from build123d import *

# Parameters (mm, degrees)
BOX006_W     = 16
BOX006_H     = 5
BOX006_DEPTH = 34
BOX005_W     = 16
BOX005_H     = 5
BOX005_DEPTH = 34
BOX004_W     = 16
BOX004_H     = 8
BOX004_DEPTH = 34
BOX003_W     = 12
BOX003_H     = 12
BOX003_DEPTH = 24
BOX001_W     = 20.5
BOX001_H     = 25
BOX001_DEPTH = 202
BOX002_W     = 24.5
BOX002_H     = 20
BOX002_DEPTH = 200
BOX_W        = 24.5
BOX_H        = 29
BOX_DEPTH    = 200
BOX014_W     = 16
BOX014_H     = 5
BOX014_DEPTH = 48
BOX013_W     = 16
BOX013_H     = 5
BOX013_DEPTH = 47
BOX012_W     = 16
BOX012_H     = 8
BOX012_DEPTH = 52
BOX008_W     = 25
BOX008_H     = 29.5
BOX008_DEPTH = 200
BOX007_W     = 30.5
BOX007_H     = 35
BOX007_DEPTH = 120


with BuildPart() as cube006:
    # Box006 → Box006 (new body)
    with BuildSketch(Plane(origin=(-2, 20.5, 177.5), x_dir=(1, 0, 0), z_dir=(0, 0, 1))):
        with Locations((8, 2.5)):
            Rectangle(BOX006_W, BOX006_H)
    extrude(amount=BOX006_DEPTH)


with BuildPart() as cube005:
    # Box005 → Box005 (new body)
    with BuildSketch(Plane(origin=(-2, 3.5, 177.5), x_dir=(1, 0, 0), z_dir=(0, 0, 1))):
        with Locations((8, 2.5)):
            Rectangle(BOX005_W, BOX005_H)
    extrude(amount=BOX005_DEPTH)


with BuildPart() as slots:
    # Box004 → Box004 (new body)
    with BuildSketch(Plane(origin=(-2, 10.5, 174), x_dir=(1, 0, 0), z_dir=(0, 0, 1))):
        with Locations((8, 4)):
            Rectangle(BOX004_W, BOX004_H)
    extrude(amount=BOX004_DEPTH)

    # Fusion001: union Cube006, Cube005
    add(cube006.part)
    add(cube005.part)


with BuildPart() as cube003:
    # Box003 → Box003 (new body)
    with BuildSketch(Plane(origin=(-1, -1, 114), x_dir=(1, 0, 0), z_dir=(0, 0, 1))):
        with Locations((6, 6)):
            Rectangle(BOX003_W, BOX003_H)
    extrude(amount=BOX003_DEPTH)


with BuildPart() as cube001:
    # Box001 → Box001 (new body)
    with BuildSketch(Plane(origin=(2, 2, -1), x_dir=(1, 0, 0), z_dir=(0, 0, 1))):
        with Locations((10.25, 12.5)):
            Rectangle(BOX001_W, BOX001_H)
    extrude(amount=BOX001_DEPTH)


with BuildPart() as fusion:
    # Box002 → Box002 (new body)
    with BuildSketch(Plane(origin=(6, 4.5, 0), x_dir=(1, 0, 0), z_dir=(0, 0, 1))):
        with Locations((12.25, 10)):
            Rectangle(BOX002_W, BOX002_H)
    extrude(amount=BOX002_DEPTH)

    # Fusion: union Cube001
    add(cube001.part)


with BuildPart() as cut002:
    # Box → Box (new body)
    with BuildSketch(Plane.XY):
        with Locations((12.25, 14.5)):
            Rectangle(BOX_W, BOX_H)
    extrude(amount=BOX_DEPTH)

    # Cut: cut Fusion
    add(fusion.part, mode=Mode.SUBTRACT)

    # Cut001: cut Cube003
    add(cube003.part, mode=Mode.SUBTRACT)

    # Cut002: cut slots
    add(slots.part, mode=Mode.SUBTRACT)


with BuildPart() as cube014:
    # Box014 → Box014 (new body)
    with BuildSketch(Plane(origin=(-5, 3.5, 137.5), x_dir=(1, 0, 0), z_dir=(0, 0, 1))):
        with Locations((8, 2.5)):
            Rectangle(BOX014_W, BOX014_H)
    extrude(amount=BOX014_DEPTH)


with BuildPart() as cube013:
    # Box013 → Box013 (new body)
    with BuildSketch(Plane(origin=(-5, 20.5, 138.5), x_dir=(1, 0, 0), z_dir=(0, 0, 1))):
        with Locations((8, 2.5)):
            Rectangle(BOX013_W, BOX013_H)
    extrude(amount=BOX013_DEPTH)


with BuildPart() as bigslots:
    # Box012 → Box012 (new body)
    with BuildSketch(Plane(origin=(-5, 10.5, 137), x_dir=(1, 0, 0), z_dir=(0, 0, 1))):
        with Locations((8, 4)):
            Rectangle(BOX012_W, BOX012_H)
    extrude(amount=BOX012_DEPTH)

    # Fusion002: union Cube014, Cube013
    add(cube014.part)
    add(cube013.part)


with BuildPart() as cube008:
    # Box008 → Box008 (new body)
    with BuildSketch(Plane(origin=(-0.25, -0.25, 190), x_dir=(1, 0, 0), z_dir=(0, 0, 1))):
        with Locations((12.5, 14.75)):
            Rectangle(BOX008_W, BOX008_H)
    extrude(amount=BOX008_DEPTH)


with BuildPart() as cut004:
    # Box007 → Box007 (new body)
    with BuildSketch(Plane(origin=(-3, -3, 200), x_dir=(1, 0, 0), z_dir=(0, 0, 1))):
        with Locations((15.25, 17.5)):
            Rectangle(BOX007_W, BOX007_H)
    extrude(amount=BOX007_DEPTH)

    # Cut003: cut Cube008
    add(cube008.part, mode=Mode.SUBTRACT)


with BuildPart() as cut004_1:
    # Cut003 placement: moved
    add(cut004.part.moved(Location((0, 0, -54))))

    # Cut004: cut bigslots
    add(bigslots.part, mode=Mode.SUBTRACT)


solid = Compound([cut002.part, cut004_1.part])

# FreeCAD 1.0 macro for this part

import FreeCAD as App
import Part
import Sketcher
from FreeCAD import Vector
Q = App.Units.Quantity

doc = App.newDocument("Part")
body = doc.addObject("PartDesign::Body", "Body")

sketch1 = body.newObject("Sketcher::SketchObject", "Sketch")
sketch1.AttachmentSupport = (doc.getObject("XY_Plane"), [""])
sketch1.MapMode = "FlatFace"
sketch1.AttachmentOffset = App.Placement(Vector(0, 0, 177.5), App.Rotation())
sketch1.addGeometry(Part.LineSegment(Vector(-2, 26, 0), Vector(-2, 20, 0)), False)
sketch1.addGeometry(Part.LineSegment(Vector(-2, 20, 0), Vector(14, 20, 0)), False)
sketch1.addGeometry(Part.LineSegment(Vector(14, 20, 0), Vector(14, 26, 0)), False)
sketch1.addGeometry(Part.LineSegment(Vector(14, 26, 0), Vector(-2, 26, 0)), False)
sketch1.addConstraint(Sketcher.Constraint("Coincident", 0, 2, 1, 1))
sketch1.addConstraint(Sketcher.Constraint("Coincident", 1, 2, 2, 1))
sketch1.addConstraint(Sketcher.Constraint("Coincident", 2, 2, 3, 1))
sketch1.addConstraint(Sketcher.Constraint("Coincident", 3, 2, 0, 1))
sketch1.addConstraint(Sketcher.Constraint("Vertical", 0))
sketch1.addConstraint(Sketcher.Constraint("Horizontal", 1))
sketch1.addConstraint(Sketcher.Constraint("Vertical", 2))
sketch1.addConstraint(Sketcher.Constraint("Horizontal", 3))
sketch1.addConstraint(Sketcher.Constraint("DistanceX", 1, 1, 1, 2, Q("16 mm")))
sketch1.addConstraint(Sketcher.Constraint("DistanceY", 0, 2, 0, 1, Q("5 mm")))
sketch1.addConstraint(Sketcher.Constraint("DistanceX", 0, 2, -1, 1, Q("2 mm")))
sketch1.addConstraint(Sketcher.Constraint("DistanceY", -1, 1, 0, 2, Q("20.5 mm")))
pad1 = body.newObject("PartDesign::Pad", "Pad")
pad1.Profile = sketch1
pad1.Length = 34
body2 = doc.addObject("PartDesign::Body", "Body001")

sketch2 = body2.newObject("Sketcher::SketchObject", "Sketch001")
sketch2.AttachmentSupport = (doc.getObject("XY_Plane001"), [""])
sketch2.MapMode = "FlatFace"
sketch2.AttachmentOffset = App.Placement(Vector(0, 0, 177.5), App.Rotation())
sketch2.addGeometry(Part.LineSegment(Vector(-2, 8, 0), Vector(-2, 4, 0)), False)
sketch2.addGeometry(Part.LineSegment(Vector(-2, 4, 0), Vector(14, 4, 0)), False)
sketch2.addGeometry(Part.LineSegment(Vector(14, 4, 0), Vector(14, 8, 0)), False)
sketch2.addGeometry(Part.LineSegment(Vector(14, 8, 0), Vector(-2, 8, 0)), False)
sketch2.addConstraint(Sketcher.Constraint("Coincident", 0, 2, 1, 1))
sketch2.addConstraint(Sketcher.Constraint("Coincident", 1, 2, 2, 1))
sketch2.addConstraint(Sketcher.Constraint("Coincident", 2, 2, 3, 1))
sketch2.addConstraint(Sketcher.Constraint("Coincident", 3, 2, 0, 1))
sketch2.addConstraint(Sketcher.Constraint("Vertical", 0))
sketch2.addConstraint(Sketcher.Constraint("Horizontal", 1))
sketch2.addConstraint(Sketcher.Constraint("Vertical", 2))
sketch2.addConstraint(Sketcher.Constraint("Horizontal", 3))
sketch2.addConstraint(Sketcher.Constraint("DistanceX", 1, 1, 1, 2, Q("16 mm")))
sketch2.addConstraint(Sketcher.Constraint("DistanceY", 0, 2, 0, 1, Q("5 mm")))
sketch2.addConstraint(Sketcher.Constraint("DistanceX", 0, 2, -1, 1, Q("2 mm")))
sketch2.addConstraint(Sketcher.Constraint("DistanceY", -1, 1, 0, 2, Q("3.5 mm")))
pad2 = body2.newObject("PartDesign::Pad", "Pad001")
pad2.Profile = sketch2
pad2.Length = 34
body3 = doc.addObject("PartDesign::Body", "Body002")
body3.AllowCompound = True

sketch3 = body3.newObject("Sketcher::SketchObject", "Sketch002")
sketch3.AttachmentSupport = (doc.getObject("XY_Plane002"), [""])
sketch3.MapMode = "FlatFace"
sketch3.AttachmentOffset = App.Placement(Vector(0, 0, 174), App.Rotation())
sketch3.addGeometry(Part.LineSegment(Vector(-2, 18, 0), Vector(-2, 10, 0)), False)
sketch3.addGeometry(Part.LineSegment(Vector(-2, 10, 0), Vector(14, 10, 0)), False)
sketch3.addGeometry(Part.LineSegment(Vector(14, 10, 0), Vector(14, 18, 0)), False)
sketch3.addGeometry(Part.LineSegment(Vector(14, 18, 0), Vector(-2, 18, 0)), False)
sketch3.addConstraint(Sketcher.Constraint("Coincident", 0, 2, 1, 1))
sketch3.addConstraint(Sketcher.Constraint("Coincident", 1, 2, 2, 1))
sketch3.addConstraint(Sketcher.Constraint("Coincident", 2, 2, 3, 1))
sketch3.addConstraint(Sketcher.Constraint("Coincident", 3, 2, 0, 1))
sketch3.addConstraint(Sketcher.Constraint("Vertical", 0))
sketch3.addConstraint(Sketcher.Constraint("Horizontal", 1))
sketch3.addConstraint(Sketcher.Constraint("Vertical", 2))
sketch3.addConstraint(Sketcher.Constraint("Horizontal", 3))
sketch3.addConstraint(Sketcher.Constraint("DistanceX", 1, 1, 1, 2, Q("16 mm")))
sketch3.addConstraint(Sketcher.Constraint("DistanceY", 0, 2, 0, 1, Q("8 mm")))
sketch3.addConstraint(Sketcher.Constraint("DistanceX", 0, 2, -1, 1, Q("2 mm")))
sketch3.addConstraint(Sketcher.Constraint("DistanceY", -1, 1, 0, 2, Q("10.5 mm")))
pad3 = body3.newObject("PartDesign::Pad", "Pad002")
pad3.Profile = sketch3
pad3.Length = 34
doc.recompute()

boolean = body3.newObject("PartDesign::Boolean", "Boolean")
boolean.Type = "Fuse"
boolean.addObjects([body])
doc.recompute()

boolean2 = body3.newObject("PartDesign::Boolean", "Boolean001")
boolean2.Type = "Fuse"
boolean2.addObjects([body2])
body4 = doc.addObject("PartDesign::Body", "Body003")

sketch4 = body4.newObject("Sketcher::SketchObject", "Sketch003")
sketch4.AttachmentSupport = (doc.getObject("XY_Plane003"), [""])
sketch4.MapMode = "FlatFace"
sketch4.AttachmentOffset = App.Placement(Vector(0, 0, 114), App.Rotation())
sketch4.addGeometry(Part.LineSegment(Vector(-1, 11, 0), Vector(-1, -1, 0)), False)
sketch4.addGeometry(Part.LineSegment(Vector(-1, -1, 0), Vector(11, -1, 0)), False)
sketch4.addGeometry(Part.LineSegment(Vector(11, -1, 0), Vector(11, 11, 0)), False)
sketch4.addGeometry(Part.LineSegment(Vector(11, 11, 0), Vector(-1, 11, 0)), False)
sketch4.addConstraint(Sketcher.Constraint("Coincident", 0, 2, 1, 1))
sketch4.addConstraint(Sketcher.Constraint("Coincident", 1, 2, 2, 1))
sketch4.addConstraint(Sketcher.Constraint("Coincident", 2, 2, 3, 1))
sketch4.addConstraint(Sketcher.Constraint("Coincident", 3, 2, 0, 1))
sketch4.addConstraint(Sketcher.Constraint("Vertical", 0))
sketch4.addConstraint(Sketcher.Constraint("Horizontal", 1))
sketch4.addConstraint(Sketcher.Constraint("Vertical", 2))
sketch4.addConstraint(Sketcher.Constraint("Horizontal", 3))
sketch4.addConstraint(Sketcher.Constraint("Equal", 3, 0))
sketch4.addConstraint(Sketcher.Constraint("DistanceX", 1, 1, 1, 2, Q("12 mm")))
sketch4.addConstraint(Sketcher.Constraint("DistanceX", 0, 2, -1, 1, Q("1 mm")))
sketch4.addConstraint(Sketcher.Constraint("DistanceY", 0, 2, -1, 1, Q("1 mm")))
pad4 = body4.newObject("PartDesign::Pad", "Pad003")
pad4.Profile = sketch4
pad4.Length = 24
body5 = doc.addObject("PartDesign::Body", "Body004")

sketch5 = body5.newObject("Sketcher::SketchObject", "Sketch004")
sketch5.AttachmentSupport = (doc.getObject("XY_Plane004"), [""])
sketch5.MapMode = "FlatFace"
sketch5.AttachmentOffset = App.Placement(Vector(0, 0, -1), App.Rotation())
sketch5.addGeometry(Part.LineSegment(Vector(2, 27, 0), Vector(2, 2, 0)), False)
sketch5.addGeometry(Part.LineSegment(Vector(2, 2, 0), Vector(22, 2, 0)), False)
sketch5.addGeometry(Part.LineSegment(Vector(22, 2, 0), Vector(22, 27, 0)), False)
sketch5.addGeometry(Part.LineSegment(Vector(22, 27, 0), Vector(2, 27, 0)), False)
sketch5.addConstraint(Sketcher.Constraint("Coincident", 0, 2, 1, 1))
sketch5.addConstraint(Sketcher.Constraint("Coincident", 1, 2, 2, 1))
sketch5.addConstraint(Sketcher.Constraint("Coincident", 2, 2, 3, 1))
sketch5.addConstraint(Sketcher.Constraint("Coincident", 3, 2, 0, 1))
sketch5.addConstraint(Sketcher.Constraint("Vertical", 0))
sketch5.addConstraint(Sketcher.Constraint("Horizontal", 1))
sketch5.addConstraint(Sketcher.Constraint("Vertical", 2))
sketch5.addConstraint(Sketcher.Constraint("Horizontal", 3))
sketch5.addConstraint(Sketcher.Constraint("DistanceY", 0, 2, 0, 1, Q("25 mm")))
sketch5.addConstraint(Sketcher.Constraint("DistanceX", 1, 1, 1, 2, Q("20.5 mm")))
sketch5.addConstraint(Sketcher.Constraint("DistanceX", -1, 1, 0, 2, Q("2 mm")))
sketch5.addConstraint(Sketcher.Constraint("DistanceY", -1, 1, 0, 2, Q("2 mm")))
pad5 = body5.newObject("PartDesign::Pad", "Pad004")
pad5.Profile = sketch5
pad5.Length = 202
body6 = doc.addObject("PartDesign::Body", "Body005")

sketch6 = body6.newObject("Sketcher::SketchObject", "Sketch005")
sketch6.AttachmentSupport = (doc.getObject("XY_Plane005"), [""])
sketch6.MapMode = "FlatFace"
sketch6.addGeometry(Part.LineSegment(Vector(6, 24, 0), Vector(6, 4, 0)), False)
sketch6.addGeometry(Part.LineSegment(Vector(6, 4, 0), Vector(30, 4, 0)), False)
sketch6.addGeometry(Part.LineSegment(Vector(30, 4, 0), Vector(30, 24, 0)), False)
sketch6.addGeometry(Part.LineSegment(Vector(30, 24, 0), Vector(6, 24, 0)), False)
sketch6.addConstraint(Sketcher.Constraint("Coincident", 0, 2, 1, 1))
sketch6.addConstraint(Sketcher.Constraint("Coincident", 1, 2, 2, 1))
sketch6.addConstraint(Sketcher.Constraint("Coincident", 2, 2, 3, 1))
sketch6.addConstraint(Sketcher.Constraint("Coincident", 3, 2, 0, 1))
sketch6.addConstraint(Sketcher.Constraint("Vertical", 0))
sketch6.addConstraint(Sketcher.Constraint("Horizontal", 1))
sketch6.addConstraint(Sketcher.Constraint("Vertical", 2))
sketch6.addConstraint(Sketcher.Constraint("Horizontal", 3))
sketch6.addConstraint(Sketcher.Constraint("DistanceY", 0, 2, 0, 1, Q("20 mm")))
sketch6.addConstraint(Sketcher.Constraint("DistanceX", 1, 1, 1, 2, Q("24.5 mm")))
sketch6.addConstraint(Sketcher.Constraint("DistanceX", -1, 1, 0, 2, Q("6 mm")))
sketch6.addConstraint(Sketcher.Constraint("DistanceY", -1, 1, 0, 2, Q("4.5 mm")))
pad6 = body6.newObject("PartDesign::Pad", "Pad005")
pad6.Profile = sketch6
pad6.Length = 200
doc.recompute()

boolean3 = body6.newObject("PartDesign::Boolean", "Boolean002")
boolean3.Type = "Fuse"
boolean3.addObjects([body5])
body7 = doc.addObject("PartDesign::Body", "Body006")

sketch7 = body7.newObject("Sketcher::SketchObject", "Sketch006")
sketch7.AttachmentSupport = (doc.getObject("XY_Plane006"), [""])
sketch7.MapMode = "FlatFace"
sketch7.addGeometry(Part.LineSegment(Vector(0, 29, 0), Vector(0, 0, 0)), False)
sketch7.addGeometry(Part.LineSegment(Vector(0, 0, 0), Vector(24, 0, 0)), False)
sketch7.addGeometry(Part.LineSegment(Vector(24, 0, 0), Vector(24, 29, 0)), False)
sketch7.addGeometry(Part.LineSegment(Vector(24, 29, 0), Vector(0, 29, 0)), False)
sketch7.addConstraint(Sketcher.Constraint("Coincident", 0, 2, 1, 1))
sketch7.addConstraint(Sketcher.Constraint("Coincident", 1, 2, 2, 1))
sketch7.addConstraint(Sketcher.Constraint("Coincident", 2, 2, 3, 1))
sketch7.addConstraint(Sketcher.Constraint("Coincident", 3, 2, 0, 1))
sketch7.addConstraint(Sketcher.Constraint("Vertical", 0))
sketch7.addConstraint(Sketcher.Constraint("Horizontal", 1))
sketch7.addConstraint(Sketcher.Constraint("Vertical", 2))
sketch7.addConstraint(Sketcher.Constraint("Horizontal", 3))
sketch7.addConstraint(Sketcher.Constraint("Coincident", 0, 2, -1, 1))
sketch7.addConstraint(Sketcher.Constraint("DistanceY", 0, 2, 0, 1, Q("29 mm")))
sketch7.addConstraint(Sketcher.Constraint("DistanceX", 1, 1, 1, 2, Q("24.5 mm")))
pad7 = body7.newObject("PartDesign::Pad", "Pad006")
pad7.Profile = sketch7
pad7.Length = 200
doc.recompute()

boolean4 = body7.newObject("PartDesign::Boolean", "Boolean003")
boolean4.Type = "Cut"
boolean4.addObjects([body6])
doc.recompute()

boolean5 = body7.newObject("PartDesign::Boolean", "Boolean004")
boolean5.Type = "Cut"
boolean5.addObjects([body4])
doc.recompute()

boolean6 = body7.newObject("PartDesign::Boolean", "Boolean005")
boolean6.Type = "Cut"
boolean6.addObjects([body3])
body8 = doc.addObject("PartDesign::Body", "Body007")

sketch8 = body8.newObject("Sketcher::SketchObject", "Sketch007")
sketch8.AttachmentSupport = (doc.getObject("XY_Plane007"), [""])
sketch8.MapMode = "FlatFace"
sketch8.AttachmentOffset = App.Placement(Vector(0, 0, 137.5), App.Rotation())
sketch8.addGeometry(Part.LineSegment(Vector(-5, 8, 0), Vector(-5, 4, 0)), False)
sketch8.addGeometry(Part.LineSegment(Vector(-5, 4, 0), Vector(11, 4, 0)), False)
sketch8.addGeometry(Part.LineSegment(Vector(11, 4, 0), Vector(11, 8, 0)), False)
sketch8.addGeometry(Part.LineSegment(Vector(11, 8, 0), Vector(-5, 8, 0)), False)
sketch8.addConstraint(Sketcher.Constraint("Coincident", 0, 2, 1, 1))
sketch8.addConstraint(Sketcher.Constraint("Coincident", 1, 2, 2, 1))
sketch8.addConstraint(Sketcher.Constraint("Coincident", 2, 2, 3, 1))
sketch8.addConstraint(Sketcher.Constraint("Coincident", 3, 2, 0, 1))
sketch8.addConstraint(Sketcher.Constraint("Vertical", 0))
sketch8.addConstraint(Sketcher.Constraint("Horizontal", 1))
sketch8.addConstraint(Sketcher.Constraint("Vertical", 2))
sketch8.addConstraint(Sketcher.Constraint("Horizontal", 3))
sketch8.addConstraint(Sketcher.Constraint("DistanceX", 1, 1, 1, 2, Q("16 mm")))
sketch8.addConstraint(Sketcher.Constraint("DistanceY", 0, 2, 0, 1, Q("5 mm")))
sketch8.addConstraint(Sketcher.Constraint("DistanceX", 0, 2, -1, 1, Q("5 mm")))
sketch8.addConstraint(Sketcher.Constraint("DistanceY", -1, 1, 0, 2, Q("3.5 mm")))
pad8 = body8.newObject("PartDesign::Pad", "Pad007")
pad8.Profile = sketch8
pad8.Length = 48
body9 = doc.addObject("PartDesign::Body", "Body008")

sketch9 = body9.newObject("Sketcher::SketchObject", "Sketch008")
sketch9.AttachmentSupport = (doc.getObject("XY_Plane008"), [""])
sketch9.MapMode = "FlatFace"
sketch9.AttachmentOffset = App.Placement(Vector(0, 0, 138.5), App.Rotation())
sketch9.addGeometry(Part.LineSegment(Vector(-5, 26, 0), Vector(-5, 20, 0)), False)
sketch9.addGeometry(Part.LineSegment(Vector(-5, 20, 0), Vector(11, 20, 0)), False)
sketch9.addGeometry(Part.LineSegment(Vector(11, 20, 0), Vector(11, 26, 0)), False)
sketch9.addGeometry(Part.LineSegment(Vector(11, 26, 0), Vector(-5, 26, 0)), False)
sketch9.addConstraint(Sketcher.Constraint("Coincident", 0, 2, 1, 1))
sketch9.addConstraint(Sketcher.Constraint("Coincident", 1, 2, 2, 1))
sketch9.addConstraint(Sketcher.Constraint("Coincident", 2, 2, 3, 1))
sketch9.addConstraint(Sketcher.Constraint("Coincident", 3, 2, 0, 1))
sketch9.addConstraint(Sketcher.Constraint("Vertical", 0))
sketch9.addConstraint(Sketcher.Constraint("Horizontal", 1))
sketch9.addConstraint(Sketcher.Constraint("Vertical", 2))
sketch9.addConstraint(Sketcher.Constraint("Horizontal", 3))
sketch9.addConstraint(Sketcher.Constraint("DistanceX", 1, 1, 1, 2, Q("16 mm")))
sketch9.addConstraint(Sketcher.Constraint("DistanceY", 0, 2, 0, 1, Q("5 mm")))
sketch9.addConstraint(Sketcher.Constraint("DistanceX", 0, 2, -1, 1, Q("5 mm")))
sketch9.addConstraint(Sketcher.Constraint("DistanceY", -1, 1, 0, 2, Q("20.5 mm")))
pad9 = body9.newObject("PartDesign::Pad", "Pad008")
pad9.Profile = sketch9
pad9.Length = 47
body10 = doc.addObject("PartDesign::Body", "Body009")
body10.AllowCompound = True

sketch10 = body10.newObject("Sketcher::SketchObject", "Sketch009")
sketch10.AttachmentSupport = (doc.getObject("XY_Plane009"), [""])
sketch10.MapMode = "FlatFace"
sketch10.AttachmentOffset = App.Placement(Vector(0, 0, 137), App.Rotation())
sketch10.addGeometry(Part.LineSegment(Vector(-5, 18, 0), Vector(-5, 10, 0)), False)
sketch10.addGeometry(Part.LineSegment(Vector(-5, 10, 0), Vector(11, 10, 0)), False)
sketch10.addGeometry(Part.LineSegment(Vector(11, 10, 0), Vector(11, 18, 0)), False)
sketch10.addGeometry(Part.LineSegment(Vector(11, 18, 0), Vector(-5, 18, 0)), False)
sketch10.addConstraint(Sketcher.Constraint("Coincident", 0, 2, 1, 1))
sketch10.addConstraint(Sketcher.Constraint("Coincident", 1, 2, 2, 1))
sketch10.addConstraint(Sketcher.Constraint("Coincident", 2, 2, 3, 1))
sketch10.addConstraint(Sketcher.Constraint("Coincident", 3, 2, 0, 1))
sketch10.addConstraint(Sketcher.Constraint("Vertical", 0))
sketch10.addConstraint(Sketcher.Constraint("Horizontal", 1))
sketch10.addConstraint(Sketcher.Constraint("Vertical", 2))
sketch10.addConstraint(Sketcher.Constraint("Horizontal", 3))
sketch10.addConstraint(Sketcher.Constraint("DistanceX", 1, 1, 1, 2, Q("16 mm")))
sketch10.addConstraint(Sketcher.Constraint("DistanceY", 0, 2, 0, 1, Q("8 mm")))
sketch10.addConstraint(Sketcher.Constraint("DistanceX", 0, 2, -1, 1, Q("5 mm")))
sketch10.addConstraint(Sketcher.Constraint("DistanceY", -1, 1, 0, 2, Q("10.5 mm")))
pad10 = body10.newObject("PartDesign::Pad", "Pad009")
pad10.Profile = sketch10
pad10.Length = 52
doc.recompute()

boolean7 = body10.newObject("PartDesign::Boolean", "Boolean006")
boolean7.Type = "Fuse"
boolean7.addObjects([body8])
doc.recompute()

boolean8 = body10.newObject("PartDesign::Boolean", "Boolean007")
boolean8.Type = "Fuse"
boolean8.addObjects([body9])
body11 = doc.addObject("PartDesign::Body", "Body010")

sketch11 = body11.newObject("Sketcher::SketchObject", "Sketch010")
sketch11.AttachmentSupport = (doc.getObject("XY_Plane010"), [""])
sketch11.MapMode = "FlatFace"
sketch11.AttachmentOffset = App.Placement(Vector(0, 0, 190), App.Rotation())
sketch11.addGeometry(Part.LineSegment(Vector(0, 29, 0), Vector(0, 0, 0)), False)
sketch11.addGeometry(Part.LineSegment(Vector(0, 0, 0), Vector(25, 0, 0)), False)
sketch11.addGeometry(Part.LineSegment(Vector(25, 0, 0), Vector(25, 29, 0)), False)
sketch11.addGeometry(Part.LineSegment(Vector(25, 29, 0), Vector(0, 29, 0)), False)
sketch11.addConstraint(Sketcher.Constraint("Coincident", 0, 2, 1, 1))
sketch11.addConstraint(Sketcher.Constraint("Coincident", 1, 2, 2, 1))
sketch11.addConstraint(Sketcher.Constraint("Coincident", 2, 2, 3, 1))
sketch11.addConstraint(Sketcher.Constraint("Coincident", 3, 2, 0, 1))
sketch11.addConstraint(Sketcher.Constraint("Vertical", 0))
sketch11.addConstraint(Sketcher.Constraint("Horizontal", 1))
sketch11.addConstraint(Sketcher.Constraint("Vertical", 2))
sketch11.addConstraint(Sketcher.Constraint("Horizontal", 3))
sketch11.addConstraint(Sketcher.Constraint("DistanceX", 1, 1, 1, 2, Q("25 mm")))
sketch11.addConstraint(Sketcher.Constraint("DistanceY", 0, 2, 0, 1, Q("29.5 mm")))
sketch11.addConstraint(Sketcher.Constraint("DistanceX", 0, 2, -1, 1, Q("0.25 mm")))
sketch11.addConstraint(Sketcher.Constraint("DistanceY", 0, 2, -1, 1, Q("0.25 mm")))
pad11 = body11.newObject("PartDesign::Pad", "Pad010")
pad11.Profile = sketch11
pad11.Length = 200
body12 = doc.addObject("PartDesign::Body", "Body011")

sketch12 = body12.newObject("Sketcher::SketchObject", "Sketch011")
sketch12.AttachmentSupport = (doc.getObject("XY_Plane011"), [""])
sketch12.MapMode = "FlatFace"
sketch12.AttachmentOffset = App.Placement(Vector(0, 0, 200), App.Rotation())
sketch12.addGeometry(Part.LineSegment(Vector(-3, 32, 0), Vector(-3, -3, 0)), False)
sketch12.addGeometry(Part.LineSegment(Vector(-3, -3, 0), Vector(28, -3, 0)), False)
sketch12.addGeometry(Part.LineSegment(Vector(28, -3, 0), Vector(28, 32, 0)), False)
sketch12.addGeometry(Part.LineSegment(Vector(28, 32, 0), Vector(-3, 32, 0)), False)
sketch12.addConstraint(Sketcher.Constraint("Coincident", 0, 2, 1, 1))
sketch12.addConstraint(Sketcher.Constraint("Coincident", 1, 2, 2, 1))
sketch12.addConstraint(Sketcher.Constraint("Coincident", 2, 2, 3, 1))
sketch12.addConstraint(Sketcher.Constraint("Coincident", 3, 2, 0, 1))
sketch12.addConstraint(Sketcher.Constraint("Vertical", 0))
sketch12.addConstraint(Sketcher.Constraint("Horizontal", 1))
sketch12.addConstraint(Sketcher.Constraint("Vertical", 2))
sketch12.addConstraint(Sketcher.Constraint("Horizontal", 3))
sketch12.addConstraint(Sketcher.Constraint("DistanceY", 0, 2, 0, 1, Q("35 mm")))
sketch12.addConstraint(Sketcher.Constraint("DistanceX", 1, 1, 1, 2, Q("30.5 mm")))
sketch12.addConstraint(Sketcher.Constraint("DistanceX", 0, 2, -1, 1, Q("3 mm")))
sketch12.addConstraint(Sketcher.Constraint("DistanceY", 0, 2, -1, 1, Q("3 mm")))
pad12 = body12.newObject("PartDesign::Pad", "Pad011")
pad12.Profile = sketch12
pad12.Length = 120
doc.recompute()

boolean9 = body12.newObject("PartDesign::Boolean", "Boolean008")
boolean9.Type = "Cut"
boolean9.addObjects([body11])
body13 = doc.addObject("PartDesign::Body", "Body012")
doc.recompute()

body12.Placement = App.Placement(Vector(0, 0, -54), App.Rotation(Vector(0, 0, 1), 0))
boolean10 = body13.newObject("PartDesign::Boolean", "Boolean009")
boolean10.Type = "Fuse"
boolean10.addObjects([body12])
doc.recompute()

boolean11 = body13.newObject("PartDesign::Boolean", "Boolean010")
boolean11.Type = "Cut"
boolean11.addObjects([body10])

doc.recompute()
